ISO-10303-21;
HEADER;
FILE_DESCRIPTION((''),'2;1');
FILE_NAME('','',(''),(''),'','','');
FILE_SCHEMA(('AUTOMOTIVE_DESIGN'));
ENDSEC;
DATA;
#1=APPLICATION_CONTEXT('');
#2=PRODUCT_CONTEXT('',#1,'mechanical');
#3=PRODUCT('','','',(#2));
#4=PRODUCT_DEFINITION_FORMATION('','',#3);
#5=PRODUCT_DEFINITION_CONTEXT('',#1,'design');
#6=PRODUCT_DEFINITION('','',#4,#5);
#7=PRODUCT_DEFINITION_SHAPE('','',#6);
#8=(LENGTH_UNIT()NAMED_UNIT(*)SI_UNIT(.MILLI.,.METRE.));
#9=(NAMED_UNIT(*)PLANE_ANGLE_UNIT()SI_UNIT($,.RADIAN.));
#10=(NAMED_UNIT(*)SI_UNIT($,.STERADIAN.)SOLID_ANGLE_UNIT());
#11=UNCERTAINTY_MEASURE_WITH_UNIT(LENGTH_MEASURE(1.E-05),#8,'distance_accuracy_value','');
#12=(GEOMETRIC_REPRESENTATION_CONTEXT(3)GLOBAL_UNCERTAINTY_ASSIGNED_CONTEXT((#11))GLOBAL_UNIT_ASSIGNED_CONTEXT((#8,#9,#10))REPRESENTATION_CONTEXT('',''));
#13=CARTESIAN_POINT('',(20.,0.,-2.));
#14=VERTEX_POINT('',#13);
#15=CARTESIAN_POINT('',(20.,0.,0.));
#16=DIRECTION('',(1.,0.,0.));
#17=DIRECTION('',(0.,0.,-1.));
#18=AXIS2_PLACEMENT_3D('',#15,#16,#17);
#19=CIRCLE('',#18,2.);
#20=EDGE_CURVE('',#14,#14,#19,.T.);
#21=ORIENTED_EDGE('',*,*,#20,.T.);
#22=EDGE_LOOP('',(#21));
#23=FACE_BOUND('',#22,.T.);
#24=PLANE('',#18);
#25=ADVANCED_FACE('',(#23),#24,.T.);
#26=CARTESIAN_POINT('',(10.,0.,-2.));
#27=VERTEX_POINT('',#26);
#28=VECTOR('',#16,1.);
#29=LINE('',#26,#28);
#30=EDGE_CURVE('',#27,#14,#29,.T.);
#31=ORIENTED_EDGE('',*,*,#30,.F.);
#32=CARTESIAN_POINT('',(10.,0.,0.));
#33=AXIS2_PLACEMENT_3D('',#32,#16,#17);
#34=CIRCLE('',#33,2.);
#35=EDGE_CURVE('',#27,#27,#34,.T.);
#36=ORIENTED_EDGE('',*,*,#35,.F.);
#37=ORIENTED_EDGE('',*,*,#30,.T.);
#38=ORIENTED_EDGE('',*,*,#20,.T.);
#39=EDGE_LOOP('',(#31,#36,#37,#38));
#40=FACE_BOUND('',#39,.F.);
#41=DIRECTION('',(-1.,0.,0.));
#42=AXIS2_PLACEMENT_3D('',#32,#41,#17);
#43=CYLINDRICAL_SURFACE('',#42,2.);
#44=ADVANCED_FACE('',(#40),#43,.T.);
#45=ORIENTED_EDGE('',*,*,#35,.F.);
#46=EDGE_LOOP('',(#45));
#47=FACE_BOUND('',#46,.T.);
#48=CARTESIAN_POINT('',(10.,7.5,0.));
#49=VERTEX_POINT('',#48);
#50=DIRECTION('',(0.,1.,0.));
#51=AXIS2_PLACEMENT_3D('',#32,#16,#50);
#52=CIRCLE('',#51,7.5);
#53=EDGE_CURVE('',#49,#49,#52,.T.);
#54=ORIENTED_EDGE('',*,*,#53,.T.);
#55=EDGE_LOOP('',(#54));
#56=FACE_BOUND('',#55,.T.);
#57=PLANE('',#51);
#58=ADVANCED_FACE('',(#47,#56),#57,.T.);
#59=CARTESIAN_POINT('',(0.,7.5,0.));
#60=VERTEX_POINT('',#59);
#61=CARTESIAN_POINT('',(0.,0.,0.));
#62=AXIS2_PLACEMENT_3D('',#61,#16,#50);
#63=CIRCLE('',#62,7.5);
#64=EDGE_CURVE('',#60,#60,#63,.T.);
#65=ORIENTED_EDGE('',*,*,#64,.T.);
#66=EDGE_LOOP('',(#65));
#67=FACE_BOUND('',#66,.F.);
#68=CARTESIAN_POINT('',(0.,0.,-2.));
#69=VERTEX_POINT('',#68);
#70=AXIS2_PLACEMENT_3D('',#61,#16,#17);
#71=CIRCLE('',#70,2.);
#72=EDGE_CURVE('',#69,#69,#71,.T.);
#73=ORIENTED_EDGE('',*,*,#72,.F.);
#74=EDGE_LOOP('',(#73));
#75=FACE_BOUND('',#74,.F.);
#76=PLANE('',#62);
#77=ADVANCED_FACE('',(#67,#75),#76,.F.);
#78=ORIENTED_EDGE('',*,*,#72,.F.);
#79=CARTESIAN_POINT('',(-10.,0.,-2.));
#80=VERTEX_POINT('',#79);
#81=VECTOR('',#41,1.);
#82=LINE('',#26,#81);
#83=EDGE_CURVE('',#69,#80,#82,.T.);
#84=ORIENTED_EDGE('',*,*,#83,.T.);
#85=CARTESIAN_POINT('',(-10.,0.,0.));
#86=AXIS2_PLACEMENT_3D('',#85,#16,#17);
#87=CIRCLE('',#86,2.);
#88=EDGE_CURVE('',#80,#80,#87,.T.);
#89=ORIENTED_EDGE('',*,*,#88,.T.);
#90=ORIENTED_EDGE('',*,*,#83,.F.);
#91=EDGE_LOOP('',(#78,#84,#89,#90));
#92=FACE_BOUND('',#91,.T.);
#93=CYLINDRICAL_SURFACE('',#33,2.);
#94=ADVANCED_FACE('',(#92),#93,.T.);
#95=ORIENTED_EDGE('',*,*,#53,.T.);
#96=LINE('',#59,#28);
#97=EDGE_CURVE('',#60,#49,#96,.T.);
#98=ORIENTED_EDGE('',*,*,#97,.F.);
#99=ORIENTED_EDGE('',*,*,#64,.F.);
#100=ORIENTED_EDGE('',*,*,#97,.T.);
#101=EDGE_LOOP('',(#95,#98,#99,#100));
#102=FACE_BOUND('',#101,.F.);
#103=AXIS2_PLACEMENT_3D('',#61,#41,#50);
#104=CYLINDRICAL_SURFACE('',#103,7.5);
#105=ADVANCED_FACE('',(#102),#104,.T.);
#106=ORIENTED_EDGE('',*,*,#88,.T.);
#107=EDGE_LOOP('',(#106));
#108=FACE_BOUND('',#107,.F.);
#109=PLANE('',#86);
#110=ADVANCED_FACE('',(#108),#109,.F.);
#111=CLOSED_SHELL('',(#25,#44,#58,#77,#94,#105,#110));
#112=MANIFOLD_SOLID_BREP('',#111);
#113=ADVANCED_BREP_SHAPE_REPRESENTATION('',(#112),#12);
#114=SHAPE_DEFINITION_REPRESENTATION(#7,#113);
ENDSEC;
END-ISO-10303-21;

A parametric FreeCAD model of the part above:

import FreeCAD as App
import Part
import Sketcher
from FreeCAD import Vector
Q = App.Units.Quantity

doc = App.newDocument("Part")
body = doc.addObject("PartDesign::Body", "Body")

# Sketch on YZ plane
sketch1 = body.newObject("Sketcher::SketchObject", "Sketch")
sketch1.AttachmentSupport = (doc.getObject("YZ_Plane"), [""])
sketch1.MapMode = "FlatFace"
sketch1.addGeometry(Part.Circle(Vector(0, 0, 0), Vector(0, 0, 1), 8), False)
sketch1.addConstraint(Sketcher.Constraint("Coincident", 0, 3, -1, 1))
sketch1.addConstraint(Sketcher.Constraint("Diameter", 0, Q("15 mm")))
pad1 = body.newObject("PartDesign::Pad", "Pad")
pad1.Profile = sketch1
pad1.Length = 10

# Sketch on YZ plane
sketch2 = body.newObject("Sketcher::SketchObject", "Sketch001")
sketch2.AttachmentSupport = (doc.getObject("YZ_Plane"), [""])
sketch2.MapMode = "FlatFace"
sketch2.AttachmentOffset = App.Placement(Vector(0, 0, 10), App.Rotation())
sketch2.addGeometry(Part.Circle(Vector(0, 0, 0), Vector(0, 0, 1), 2), False)
sketch2.addConstraint(Sketcher.Constraint("Coincident", 0, 3, -1, 1))
sketch2.addConstraint(Sketcher.Constraint("Diameter", 0, Q("4 mm")))
pad2 = body.newObject("PartDesign::Pad", "Pad001")
pad2.Profile = sketch2
pad2.Type = "TwoLengths"
pad2.Length = 10
pad2.Length2 = 20

doc.recompute()
